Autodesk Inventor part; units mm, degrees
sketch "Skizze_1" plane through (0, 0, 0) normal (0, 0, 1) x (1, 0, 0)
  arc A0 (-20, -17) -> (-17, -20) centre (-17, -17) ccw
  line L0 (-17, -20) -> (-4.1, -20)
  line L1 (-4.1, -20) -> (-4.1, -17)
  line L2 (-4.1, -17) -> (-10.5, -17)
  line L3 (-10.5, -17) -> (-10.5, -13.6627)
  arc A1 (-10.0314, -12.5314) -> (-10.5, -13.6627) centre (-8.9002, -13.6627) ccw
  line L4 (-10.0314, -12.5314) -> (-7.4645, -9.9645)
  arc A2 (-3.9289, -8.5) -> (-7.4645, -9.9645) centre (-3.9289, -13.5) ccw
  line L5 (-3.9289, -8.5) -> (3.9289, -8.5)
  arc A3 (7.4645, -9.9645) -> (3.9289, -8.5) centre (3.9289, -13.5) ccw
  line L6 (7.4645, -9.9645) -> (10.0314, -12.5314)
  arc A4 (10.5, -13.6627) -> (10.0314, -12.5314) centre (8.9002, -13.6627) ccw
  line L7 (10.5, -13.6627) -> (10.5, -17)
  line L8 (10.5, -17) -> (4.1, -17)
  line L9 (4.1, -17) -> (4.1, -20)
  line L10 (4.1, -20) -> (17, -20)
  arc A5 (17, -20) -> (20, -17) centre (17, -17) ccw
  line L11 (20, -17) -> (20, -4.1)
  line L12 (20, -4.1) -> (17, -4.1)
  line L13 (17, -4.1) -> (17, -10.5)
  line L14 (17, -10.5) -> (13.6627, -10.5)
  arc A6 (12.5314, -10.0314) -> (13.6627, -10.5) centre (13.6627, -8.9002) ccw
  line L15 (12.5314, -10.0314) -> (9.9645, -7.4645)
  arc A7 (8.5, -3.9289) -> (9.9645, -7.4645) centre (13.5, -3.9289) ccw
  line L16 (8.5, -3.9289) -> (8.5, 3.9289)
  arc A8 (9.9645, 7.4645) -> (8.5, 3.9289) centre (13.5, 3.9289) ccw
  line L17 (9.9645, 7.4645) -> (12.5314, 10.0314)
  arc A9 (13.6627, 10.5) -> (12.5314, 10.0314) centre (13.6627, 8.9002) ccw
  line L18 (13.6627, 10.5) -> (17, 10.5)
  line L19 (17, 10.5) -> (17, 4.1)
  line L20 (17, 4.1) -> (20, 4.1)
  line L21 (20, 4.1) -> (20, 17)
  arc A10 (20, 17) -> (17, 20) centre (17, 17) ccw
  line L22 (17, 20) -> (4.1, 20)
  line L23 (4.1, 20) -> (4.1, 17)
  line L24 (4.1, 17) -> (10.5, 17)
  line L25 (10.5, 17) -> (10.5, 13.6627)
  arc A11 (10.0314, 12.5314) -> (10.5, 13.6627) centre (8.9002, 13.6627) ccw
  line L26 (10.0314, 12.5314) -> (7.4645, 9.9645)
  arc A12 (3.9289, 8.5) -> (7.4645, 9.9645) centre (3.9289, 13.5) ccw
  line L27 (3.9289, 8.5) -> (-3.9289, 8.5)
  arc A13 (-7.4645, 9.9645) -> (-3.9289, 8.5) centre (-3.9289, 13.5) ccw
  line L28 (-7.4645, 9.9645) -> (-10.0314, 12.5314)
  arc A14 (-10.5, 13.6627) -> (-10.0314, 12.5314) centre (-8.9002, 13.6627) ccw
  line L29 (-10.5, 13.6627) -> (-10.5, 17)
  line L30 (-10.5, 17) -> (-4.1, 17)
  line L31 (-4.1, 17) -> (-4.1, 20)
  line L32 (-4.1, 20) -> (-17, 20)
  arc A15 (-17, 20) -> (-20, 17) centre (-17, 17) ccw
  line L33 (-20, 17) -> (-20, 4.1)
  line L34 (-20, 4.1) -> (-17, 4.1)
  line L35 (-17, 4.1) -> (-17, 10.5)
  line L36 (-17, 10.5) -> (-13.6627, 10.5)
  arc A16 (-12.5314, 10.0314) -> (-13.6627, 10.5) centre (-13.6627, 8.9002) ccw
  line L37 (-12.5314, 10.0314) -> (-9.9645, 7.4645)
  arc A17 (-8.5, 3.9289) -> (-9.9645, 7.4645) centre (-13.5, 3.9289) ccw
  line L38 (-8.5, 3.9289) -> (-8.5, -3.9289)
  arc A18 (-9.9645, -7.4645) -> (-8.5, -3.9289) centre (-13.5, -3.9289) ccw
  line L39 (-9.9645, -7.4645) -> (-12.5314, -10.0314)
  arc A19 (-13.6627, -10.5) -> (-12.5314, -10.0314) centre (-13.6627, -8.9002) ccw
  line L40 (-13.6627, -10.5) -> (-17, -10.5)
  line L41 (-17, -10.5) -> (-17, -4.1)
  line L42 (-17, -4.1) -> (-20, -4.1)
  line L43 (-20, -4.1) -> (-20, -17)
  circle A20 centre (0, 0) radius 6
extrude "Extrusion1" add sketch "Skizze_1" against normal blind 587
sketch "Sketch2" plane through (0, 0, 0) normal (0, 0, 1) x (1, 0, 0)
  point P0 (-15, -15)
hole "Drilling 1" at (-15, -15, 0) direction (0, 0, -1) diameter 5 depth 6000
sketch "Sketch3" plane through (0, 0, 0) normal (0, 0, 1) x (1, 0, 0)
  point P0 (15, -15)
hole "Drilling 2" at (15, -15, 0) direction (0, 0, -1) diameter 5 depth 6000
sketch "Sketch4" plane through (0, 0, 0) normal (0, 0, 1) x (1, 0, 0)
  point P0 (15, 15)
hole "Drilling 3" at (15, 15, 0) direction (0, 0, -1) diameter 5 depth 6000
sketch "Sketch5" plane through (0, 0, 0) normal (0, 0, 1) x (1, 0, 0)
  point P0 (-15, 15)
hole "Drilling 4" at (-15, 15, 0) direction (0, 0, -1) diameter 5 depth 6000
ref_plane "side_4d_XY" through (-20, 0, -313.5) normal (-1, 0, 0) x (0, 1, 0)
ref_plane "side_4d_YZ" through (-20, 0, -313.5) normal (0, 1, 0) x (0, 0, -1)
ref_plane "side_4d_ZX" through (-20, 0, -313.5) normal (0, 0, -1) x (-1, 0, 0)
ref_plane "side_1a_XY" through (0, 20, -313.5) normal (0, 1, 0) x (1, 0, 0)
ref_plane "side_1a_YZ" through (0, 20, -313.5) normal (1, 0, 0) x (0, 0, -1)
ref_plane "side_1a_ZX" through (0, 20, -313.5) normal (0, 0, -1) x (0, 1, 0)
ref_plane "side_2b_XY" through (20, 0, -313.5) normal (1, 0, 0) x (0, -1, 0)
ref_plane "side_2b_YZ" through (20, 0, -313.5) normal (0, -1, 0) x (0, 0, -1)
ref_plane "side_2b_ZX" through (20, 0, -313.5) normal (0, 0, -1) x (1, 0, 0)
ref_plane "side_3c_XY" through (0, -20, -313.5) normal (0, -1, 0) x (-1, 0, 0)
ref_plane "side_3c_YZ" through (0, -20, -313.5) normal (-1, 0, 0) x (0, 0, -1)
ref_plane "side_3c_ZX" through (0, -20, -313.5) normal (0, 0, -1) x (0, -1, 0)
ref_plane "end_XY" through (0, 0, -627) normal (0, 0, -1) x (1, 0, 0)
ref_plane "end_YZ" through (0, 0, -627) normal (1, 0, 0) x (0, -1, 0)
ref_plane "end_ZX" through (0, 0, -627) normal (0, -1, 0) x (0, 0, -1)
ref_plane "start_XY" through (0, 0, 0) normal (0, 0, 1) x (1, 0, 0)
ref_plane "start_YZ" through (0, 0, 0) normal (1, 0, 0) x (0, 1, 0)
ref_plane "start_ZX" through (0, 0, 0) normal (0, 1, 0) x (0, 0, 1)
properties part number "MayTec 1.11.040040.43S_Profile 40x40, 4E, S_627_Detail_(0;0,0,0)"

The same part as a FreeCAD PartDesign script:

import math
import FreeCAD as App
import Part
import Sketcher

doc = App.newDocument("Part")
params = doc.addObject("Spreadsheet::Sheet", "Params")
for row, (alias, value) in enumerate([
    ("sketch1_diameter", "12 mm"),
    ("sketch1_radius", "3 mm"),
    ("sketch1_radius2", "5 mm"),
    ("sketch1_width", "12.9 mm"),
    ("sketch1_width2", "6.4 mm"),
    ("pad1_length", "587 mm"),
    ("sketch2_diameter", "5 mm"),
    ("hole_diameter", "5 mm"),
    ("hole_depth", "6000 mm"),
    ("sketch3_diameter", "5 mm"),
    ("hole2_diameter", "5 mm"),
    ("hole2_depth", "6000 mm"),
    ("sketch4_diameter", "5 mm"),
    ("hole3_diameter", "5 mm"),
    ("hole3_depth", "6000 mm"),
    ("sketch5_diameter", "5 mm"),
    ("hole4_diameter", "5 mm"),
    ("hole4_depth", "6000 mm"),
], start=1):
    params.set(f"A{row}", alias)
    params.set(f"B{row}", "=" + value)
    params.setAlias(f"B{row}", alias)

body = doc.addObject("PartDesign::Body", "Body")

sketch1 = doc.addObject("Sketcher::SketchObject", "Sketch")
body.addObject(sketch1)
sketch1.AttachmentSupport = (doc.XY_Plane, [""])
sketch1.MapMode = "FlatFace"
sketch1.addGeometry(Part.LineSegment(App.Vector(-20, -4.1, 0), App.Vector(-20, -17, 0)), False)
sketch1.addGeometry(Part.ArcOfCircle(Part.Circle(App.Vector(-17, -17, 0), App.Vector(0, 0, 1), 3), math.radians(180), math.radians(270)), False)
sketch1.addGeometry(Part.LineSegment(App.Vector(-17, -20, 0), App.Vector(-4.1, -20, 0)), False)
sketch1.addGeometry(Part.LineSegment(App.Vector(-4.1, -20, 0), App.Vector(-4.1, -17, 0)), False)
sketch1.addGeometry(Part.LineSegment(App.Vector(-4.1, -17, 0), App.Vector(-10.5, -17, 0)), False)
sketch1.addGeometry(Part.LineSegment(App.Vector(-10.5, -17, 0), App.Vector(-10.5, -13.7, 0)), False)
sketch1.addGeometry(Part.ArcOfCircle(Part.Circle(App.Vector(-8.9, -13.7, 0), App.Vector(0, 0, 1), 1.6), math.radians(135), math.radians(180)), False)
sketch1.addGeometry(Part.LineSegment(App.Vector(-10, -12.5, 0), App.Vector(-7.5, -10, 0)), False)
sketch1.addGeometry(Part.ArcOfCircle(Part.Circle(App.Vector(-3.9, -13.5, 0), App.Vector(0, 0, 1), 5), math.radians(90), math.radians(135)), False)
sketch1.addGeometry(Part.LineSegment(App.Vector(-3.9, -8.5, 0), App.Vector(3.9, -8.5, 0)), False)
sketch1.addGeometry(Part.ArcOfCircle(Part.Circle(App.Vector(3.9, -13.5, 0), App.Vector(0, 0, 1), 5), math.radians(45), math.radians(90)), False)
sketch1.addGeometry(Part.LineSegment(App.Vector(7.5, -10, 0), App.Vector(10, -12.5, 0)), False)
sketch1.addGeometry(Part.ArcOfCircle(Part.Circle(App.Vector(8.9, -13.7, 0), App.Vector(0, 0, 1), 1.6), math.radians(0), math.radians(45)), False)
sketch1.addGeometry(Part.LineSegment(App.Vector(10.5, -13.7, 0), App.Vector(10.5, -17, 0)), False)
sketch1.addGeometry(Part.LineSegment(App.Vector(10.5, -17, 0), App.Vector(4.1, -17, 0)), False)
sketch1.addGeometry(Part.LineSegment(App.Vector(4.1, -17, 0), App.Vector(4.1, -20, 0)), False)
sketch1.addGeometry(Part.LineSegment(App.Vector(4.1, -20, 0), App.Vector(17, -20, 0)), False)
sketch1.addGeometry(Part.ArcOfCircle(Part.Circle(App.Vector(17, -17, 0), App.Vector(0, 0, 1), 3), math.radians(-90), math.radians(0)), False)
sketch1.addGeometry(Part.LineSegment(App.Vector(20, -17, 0), App.Vector(20, -4.1, 0)), False)
sketch1.addGeometry(Part.LineSegment(App.Vector(20, -4.1, 0), App.Vector(17, -4.1, 0)), False)
sketch1.addGeometry(Part.LineSegment(App.Vector(17, -4.1, 0), App.Vector(17, -10.5, 0)), False)
sketch1.addGeometry(Part.LineSegment(App.Vector(17, -10.5, 0), App.Vector(13.7, -10.5, 0)), False)
sketch1.addGeometry(Part.ArcOfCircle(Part.Circle(App.Vector(13.7, -8.9, 0), App.Vector(0, 0, 1), 1.6), math.radians(-135), math.radians(-90)), False)
sketch1.addGeometry(Part.LineSegment(App.Vector(12.5, -10, 0), App.Vector(10, -7.5, 0)), False)
sketch1.addGeometry(Part.ArcOfCircle(Part.Circle(App.Vector(13.5, -3.9, 0), App.Vector(0, 0, 1), 5), math.radians(180), math.radians(225)), False)
sketch1.addGeometry(Part.LineSegment(App.Vector(8.5, -3.9, 0), App.Vector(8.5, 3.9, 0)), False)
sketch1.addGeometry(Part.ArcOfCircle(Part.Circle(App.Vector(13.5, 3.9, 0), App.Vector(0, 0, 1), 5), math.radians(135), math.radians(180)), False)
sketch1.addGeometry(Part.LineSegment(App.Vector(10, 7.5, 0), App.Vector(12.5, 10, 0)), False)
sketch1.addGeometry(Part.ArcOfCircle(Part.Circle(App.Vector(13.7, 8.9, 0), App.Vector(0, 0, 1), 1.6), math.radians(90), math.radians(135)), False)
sketch1.addGeometry(Part.LineSegment(App.Vector(13.7, 10.5, 0), App.Vector(17, 10.5, 0)), False)
sketch1.addGeometry(Part.LineSegment(App.Vector(17, 10.5, 0), App.Vector(17, 4.1, 0)), False)
sketch1.addGeometry(Part.LineSegment(App.Vector(17, 4.1, 0), App.Vector(20, 4.1, 0)), False)
sketch1.addGeometry(Part.LineSegment(App.Vector(20, 4.1, 0), App.Vector(20, 17, 0)), False)
sketch1.addGeometry(Part.ArcOfCircle(Part.Circle(App.Vector(17, 17, 0), App.Vector(0, 0, 1), 3), math.radians(0), math.radians(90)), False)
sketch1.addGeometry(Part.LineSegment(App.Vector(17, 20, 0), App.Vector(4.1, 20, 0)), False)
sketch1.addGeometry(Part.LineSegment(App.Vector(4.1, 20, 0), App.Vector(4.1, 17, 0)), False)
sketch1.addGeometry(Part.LineSegment(App.Vector(4.1, 17, 0), App.Vector(10.5, 17, 0)), False)
sketch1.addGeometry(Part.LineSegment(App.Vector(10.5, 17, 0), App.Vector(10.5, 13.7, 0)), False)
sketch1.addGeometry(Part.ArcOfCircle(Part.Circle(App.Vector(8.9, 13.7, 0), App.Vector(0, 0, 1), 1.6), math.radians(-45), math.radians(0)), False)
sketch1.addGeometry(Part.LineSegment(App.Vector(10, 12.5, 0), App.Vector(7.5, 10, 0)), False)
sketch1.addGeometry(Part.ArcOfCircle(Part.Circle(App.Vector(3.9, 13.5, 0), App.Vector(0, 0, 1), 5), math.radians(-90), math.radians(-45)), False)
sketch1.addGeometry(Part.LineSegment(App.Vector(3.9, 8.5, 0), App.Vector(-3.9, 8.5, 0)), False)
sketch1.addGeometry(Part.ArcOfCircle(Part.Circle(App.Vector(-3.9, 13.5, 0), App.Vector(0, 0, 1), 5), math.radians(-135), math.radians(-90)), False)
sketch1.addGeometry(Part.LineSegment(App.Vector(-7.5, 10, 0), App.Vector(-10, 12.5, 0)), False)
sketch1.addGeometry(Part.ArcOfCircle(Part.Circle(App.Vector(-8.9, 13.7, 0), App.Vector(0, 0, 1), 1.6), math.radians(180), math.radians(225)), False)
sketch1.addGeometry(Part.LineSegment(App.Vector(-10.5, 13.7, 0), App.Vector(-10.5, 17, 0)), False)
sketch1.addGeometry(Part.LineSegment(App.Vector(-10.5, 17, 0), App.Vector(-4.1, 17, 0)), False)
sketch1.addGeometry(Part.LineSegment(App.Vector(-4.1, 17, 0), App.Vector(-4.1, 20, 0)), False)
sketch1.addGeometry(Part.LineSegment(App.Vector(-4.1, 20, 0), App.Vector(-17, 20, 0)), False)
sketch1.addGeometry(Part.ArcOfCircle(Part.Circle(App.Vector(-17, 17, 0), App.Vector(0, 0, 1), 3), math.radians(90), math.radians(180)), False)
sketch1.addGeometry(Part.LineSegment(App.Vector(-20, 17, 0), App.Vector(-20, 4.1, 0)), False)
sketch1.addGeometry(Part.LineSegment(App.Vector(-20, 4.1, 0), App.Vector(-17, 4.1, 0)), False)
sketch1.addGeometry(Part.LineSegment(App.Vector(-17, 4.1, 0), App.Vector(-17, 10.5, 0)), False)
sketch1.addGeometry(Part.LineSegment(App.Vector(-17, 10.5, 0), App.Vector(-13.7, 10.5, 0)), False)
sketch1.addGeometry(Part.ArcOfCircle(Part.Circle(App.Vector(-13.7, 8.9, 0), App.Vector(0, 0, 1), 1.6), math.radians(45), math.radians(90)), False)
sketch1.addGeometry(Part.LineSegment(App.Vector(-12.5, 10, 0), App.Vector(-10, 7.5, 0)), False)
sketch1.addGeometry(Part.ArcOfCircle(Part.Circle(App.Vector(-13.5, 3.9, 0), App.Vector(0, 0, 1), 5), math.radians(0), math.radians(45)), False)
sketch1.addGeometry(Part.LineSegment(App.Vector(-8.5, 3.9, 0), App.Vector(-8.5, -3.9, 0)), False)
sketch1.addGeometry(Part.ArcOfCircle(Part.Circle(App.Vector(-13.5, -3.9, 0), App.Vector(0, 0, 1), 5), math.radians(-45), math.radians(0)), False)
sketch1.addGeometry(Part.LineSegment(App.Vector(-10, -7.5, 0), App.Vector(-12.5, -10, 0)), False)
sketch1.addGeometry(Part.ArcOfCircle(Part.Circle(App.Vector(-13.7, -8.9, 0), App.Vector(0, 0, 1), 1.6), math.radians(-90), math.radians(-45)), False)
sketch1.addGeometry(Part.LineSegment(App.Vector(-13.7, -10.5, 0), App.Vector(-17, -10.5, 0)), False)
sketch1.addGeometry(Part.LineSegment(App.Vector(-17, -10.5, 0), App.Vector(-17, -4.1, 0)), False)
sketch1.addGeometry(Part.LineSegment(App.Vector(-17, -4.1, 0), App.Vector(-20, -4.1, 0)), False)
sketch1.addGeometry(Part.Circle(App.Vector(0, 0, 0), App.Vector(0, 0, 1), 6), False)
sketch1.addConstraint(Sketcher.Constraint("Tangent", 0, 2, 1, 1))
sketch1.addConstraint(Sketcher.Constraint("Tangent", 1, 2, 2, 1))
sketch1.addConstraint(Sketcher.Constraint("Coincident", 2, 2, 3, 1))
sketch1.addConstraint(Sketcher.Constraint("Coincident", 3, 2, 4, 1))
sketch1.addConstraint(Sketcher.Constraint("Coincident", 4, 2, 5, 1))
sketch1.addConstraint(Sketcher.Constraint("Tangent", 5, 2, 6, 2))
sketch1.addConstraint(Sketcher.Constraint("Tangent", 6, 1, 7, 1))
sketch1.addConstraint(Sketcher.Constraint("Tangent", 7, 2, 8, 2))
sketch1.addConstraint(Sketcher.Constraint("Tangent", 8, 1, 9, 1))
sketch1.addConstraint(Sketcher.Constraint("Tangent", 9, 2, 10, 2))
sketch1.addConstraint(Sketcher.Constraint("Tangent", 10, 1, 11, 1))
sketch1.addConstraint(Sketcher.Constraint("Tangent", 11, 2, 12, 2))
sketch1.addConstraint(Sketcher.Constraint("Tangent", 12, 1, 13, 1))
sketch1.addConstraint(Sketcher.Constraint("Coincident", 13, 2, 14, 1))
sketch1.addConstraint(Sketcher.Constraint("Coincident", 14, 2, 15, 1))
sketch1.addConstraint(Sketcher.Constraint("Coincident", 15, 2, 16, 1))
sketch1.addConstraint(Sketcher.Constraint("Tangent", 16, 2, 17, 1))
sketch1.addConstraint(Sketcher.Constraint("Tangent", 17, 2, 18, 1))
sketch1.addConstraint(Sketcher.Constraint("Coincident", 18, 2, 19, 1))
sketch1.addConstraint(Sketcher.Constraint("Coincident", 19, 2, 20, 1))
sketch1.addConstraint(Sketcher.Constraint("Coincident", 20, 2, 21, 1))
sketch1.addConstraint(Sketcher.Constraint("Tangent", 21, 2, 22, 2))
sketch1.addConstraint(Sketcher.Constraint("Tangent", 22, 1, 23, 1))
sketch1.addConstraint(Sketcher.Constraint("Tangent", 23, 2, 24, 2))
sketch1.addConstraint(Sketcher.Constraint("Tangent", 24, 1, 25, 1))
sketch1.addConstraint(Sketcher.Constraint("Tangent", 25, 2, 26, 2))
sketch1.addConstraint(Sketcher.Constraint("Tangent", 26, 1, 27, 1))
sketch1.addConstraint(Sketcher.Constraint("Tangent", 27, 2, 28, 2))
sketch1.addConstraint(Sketcher.Constraint("Tangent", 28, 1, 29, 1))
sketch1.addConstraint(Sketcher.Constraint("Coincident", 29, 2, 30, 1))
sketch1.addConstraint(Sketcher.Constraint("Coincident", 30, 2, 31, 1))
sketch1.addConstraint(Sketcher.Constraint("Coincident", 31, 2, 32, 1))
sketch1.addConstraint(Sketcher.Constraint("Tangent", 32, 2, 33, 1))
sketch1.addConstraint(Sketcher.Constraint("Tangent", 33, 2, 34, 1))
sketch1.addConstraint(Sketcher.Constraint("Coincident", 34, 2, 35, 1))
sketch1.addConstraint(Sketcher.Constraint("Coincident", 35, 2, 36, 1))
sketch1.addConstraint(Sketcher.Constraint("Coincident", 36, 2, 37, 1))
sketch1.addConstraint(Sketcher.Constraint("Tangent", 37, 2, 38, 2))
sketch1.addConstraint(Sketcher.Constraint("Tangent", 38, 1, 39, 1))
sketch1.addConstraint(Sketcher.Constraint("Tangent", 39, 2, 40, 2))
sketch1.addConstraint(Sketcher.Constraint("Tangent", 40, 1, 41, 1))
sketch1.addConstraint(Sketcher.Constraint("Tangent", 41, 2, 42, 2))
sketch1.addConstraint(Sketcher.Constraint("Tangent", 42, 1, 43, 1))
sketch1.addConstraint(Sketcher.Constraint("Tangent", 43, 2, 44, 2))
sketch1.addConstraint(Sketcher.Constraint("Tangent", 44, 1, 45, 1))
sketch1.addConstraint(Sketcher.Constraint("Coincident", 45, 2, 46, 1))
sketch1.addConstraint(Sketcher.Constraint("Coincident", 46, 2, 47, 1))
sketch1.addConstraint(Sketcher.Constraint("Coincident", 47, 2, 48, 1))
sketch1.addConstraint(Sketcher.Constraint("Tangent", 48, 2, 49, 1))
sketch1.addConstraint(Sketcher.Constraint("Tangent", 49, 2, 50, 1))
sketch1.addConstraint(Sketcher.Constraint("Coincident", 50, 2, 51, 1))
sketch1.addConstraint(Sketcher.Constraint("Coincident", 51, 2, 52, 1))
sketch1.addConstraint(Sketcher.Constraint("Coincident", 52, 2, 53, 1))
sketch1.addConstraint(Sketcher.Constraint("Tangent", 53, 2, 54, 2))
sketch1.addConstraint(Sketcher.Constraint("Tangent", 54, 1, 55, 1))
sketch1.addConstraint(Sketcher.Constraint("Tangent", 55, 2, 56, 2))
sketch1.addConstraint(Sketcher.Constraint("Tangent", 56, 1, 57, 1))
sketch1.addConstraint(Sketcher.Constraint("Tangent", 57, 2, 58, 2))
sketch1.addConstraint(Sketcher.Constraint("Tangent", 58, 1, 59, 1))
sketch1.addConstraint(Sketcher.Constraint("Tangent", 59, 2, 60, 2))
sketch1.addConstraint(Sketcher.Constraint("Tangent", 60, 1, 61, 1))
sketch1.addConstraint(Sketcher.Constraint("Coincident", 61, 2, 62, 1))
sketch1.addConstraint(Sketcher.Constraint("Coincident", 62, 2, 63, 1))
sketch1.addConstraint(Sketcher.Constraint("Coincident", 63, 2, 0, 1))
sketch1.addConstraint(Sketcher.Constraint("Vertical", 0))
sketch1.addConstraint(Sketcher.Constraint("Horizontal", 2))
sketch1.addConstraint(Sketcher.Constraint("Vertical", 3))
sketch1.addConstraint(Sketcher.Constraint("Horizontal", 4))
sketch1.addConstraint(Sketcher.Constraint("Vertical", 5))
sketch1.addConstraint(Sketcher.Constraint("Horizontal", 9))
sketch1.addConstraint(Sketcher.Constraint("Vertical", 13))
sketch1.addConstraint(Sketcher.Constraint("Horizontal", 14))
sketch1.addConstraint(Sketcher.Constraint("Vertical", 15))
sketch1.addConstraint(Sketcher.Constraint("Horizontal", 16))
sketch1.addConstraint(Sketcher.Constraint("Vertical", 18))
sketch1.addConstraint(Sketcher.Constraint("Horizontal", 19))
sketch1.addConstraint(Sketcher.Constraint("Vertical", 20))
sketch1.addConstraint(Sketcher.Constraint("Horizontal", 21))
sketch1.addConstraint(Sketcher.Constraint("Vertical", 25))
sketch1.addConstraint(Sketcher.Constraint("Horizontal", 29))
sketch1.addConstraint(Sketcher.Constraint("Vertical", 30))
sketch1.addConstraint(Sketcher.Constraint("Horizontal", 31))
sketch1.addConstraint(Sketcher.Constraint("Vertical", 32))
sketch1.addConstraint(Sketcher.Constraint("Horizontal", 34))
sketch1.addConstraint(Sketcher.Constraint("Vertical", 35))
sketch1.addConstraint(Sketcher.Constraint("Horizontal", 36))
sketch1.addConstraint(Sketcher.Constraint("Vertical", 37))
sketch1.addConstraint(Sketcher.Constraint("Horizontal", 41))
sketch1.addConstraint(Sketcher.Constraint("Vertical", 45))
sketch1.addConstraint(Sketcher.Constraint("Horizontal", 46))
sketch1.addConstraint(Sketcher.Constraint("Vertical", 47))
sketch1.addConstraint(Sketcher.Constraint("Horizontal", 48))
sketch1.addConstraint(Sketcher.Constraint("Vertical", 50))
sketch1.addConstraint(Sketcher.Constraint("Horizontal", 51))
sketch1.addConstraint(Sketcher.Constraint("Vertical", 52))
sketch1.addConstraint(Sketcher.Constraint("Horizontal", 53))
sketch1.addConstraint(Sketcher.Constraint("Vertical", 57))
sketch1.addConstraint(Sketcher.Constraint("Horizontal", 61))
sketch1.addConstraint(Sketcher.Constraint("Vertical", 62))
sketch1.addConstraint(Sketcher.Constraint("Horizontal", 63))
sketch1.addConstraint(Sketcher.Constraint("Coincident", 64, 3, -1, 1))
sketch1.addConstraint(Sketcher.Constraint("Equal", 8, 10))
sketch1.addConstraint(Sketcher.Constraint("Equal", 6, 12))
sketch1.addConstraint(Sketcher.Constraint("Equal", 1, 17))
sketch1.addConstraint(Sketcher.Constraint("Equal", 12, 22))
sketch1.addConstraint(Sketcher.Constraint("Equal", 10, 24))
sketch1.addConstraint(Sketcher.Constraint("Equal", 24, 26))
sketch1.addConstraint(Sketcher.Constraint("Equal", 22, 28))
sketch1.addConstraint(Sketcher.Constraint("Equal", 17, 33))
sketch1.addConstraint(Sketcher.Constraint("Equal", 28, 38))
sketch1.addConstraint(Sketcher.Constraint("Equal", 26, 40))
sketch1.addConstraint(Sketcher.Constraint("Equal", 40, 42))
sketch1.addConstraint(Sketcher.Constraint("Equal", 38, 44))
sketch1.addConstraint(Sketcher.Constraint("Equal", 33, 49))
sketch1.addConstraint(Sketcher.Constraint("Equal", 44, 54))
sketch1.addConstraint(Sketcher.Constraint("Equal", 42, 56))
sketch1.addConstraint(Sketcher.Constraint("Equal", 56, 58))
sketch1.addConstraint(Sketcher.Constraint("Equal", 54, 60))
sketch1.addConstraint(Sketcher.Constraint("Symmetric", 1, 3, 33, 3, -1, 1))
sketch1.addConstraint(Sketcher.Constraint("Symmetric", 6, 3, 38, 3, -1, 1))
sketch1.addConstraint(Sketcher.Constraint("Symmetric", 8, 3, 40, 3, -1, 1))
sketch1.addConstraint(Sketcher.Constraint("Symmetric", 12, 3, 44, 3, -1, 1))
sketch1.addConstraint(Sketcher.Constraint("Symmetric", 17, 3, 49, 3, -1, 1))
sketch1.addConstraint(Sketcher.Constraint("Symmetric", 22, 3, 54, 3, -1, 1))
sketch1.addConstraint(Sketcher.Constraint("Symmetric", 24, 3, 56, 3, -1, 1))
sketch1.addConstraint(Sketcher.Constraint("Symmetric", 28, 3, 60, 3, -1, 1))
sketch1.addConstraint(Sketcher.Constraint("Symmetric", 3, 2, 35, 2, -1, 1))
sketch1.addConstraint(Sketcher.Constraint("Symmetric", 14, 2, 46, 2, -1, 1))
sketch1.addConstraint(Sketcher.Constraint("Symmetric", 19, 2, 51, 2, -1, 1))
sketch1.addConstraint(Sketcher.Constraint("Symmetric", 30, 2, 62, 2, -1, 1))
sketch1.addConstraint(Sketcher.Constraint("Symmetric", 6, 3, 12, 3, -2))
sketch1.addConstraint(Sketcher.Constraint("Symmetric", 1, 3, 17, 3, -2))
sketch1.addConstraint(Sketcher.Constraint("Symmetric", 28, 3, 54, 3, -2))
sketch1.addConstraint(Sketcher.Constraint("Symmetric", 3, 2, 14, 2, -2))
sketch1.addConstraint(Sketcher.Constraint("Symmetric", 30, 2, 51, 2, -2))
sketch1.addConstraint(Sketcher.Constraint("Perpendicular", 7, 11))
sketch1.addConstraint(Sketcher.Constraint("Parallel", 11, 23))
sketch1.addConstraint(Sketcher.Constraint("Perpendicular", 23, 27))
sketch1.addConstraint(Sketcher.Constraint("Perpendicular", 39, 43))
sketch1.addConstraint(Sketcher.Constraint("Perpendicular", 55, 59))
sketch1.addConstraint(Sketcher.Constraint("Horizontal", 26, 3, 56, 3))
sketch1.addConstraint(Sketcher.Constraint("Horizontal", 0, 2, 3, 2))
sketch1.addConstraint(Sketcher.Constraint("Vertical", 16, 2, 19, 2))
sketch1.addConstraint(Sketcher.Constraint("Equal", 48, 0))
sketch1.addConstraint(Sketcher.Constraint("Equal", 61, 5))
sketch1.addConstraint(Sketcher.Constraint("Equal", 46, 20))
sketch1.addConstraint(Sketcher.Constraint("Equal", 41, 25))
sketch1.addConstraint(Sketcher.Constraint("Equal", 11, 23))
sketch1.addConstraint(Sketcher.Constraint("Diameter", 64, 12.0))
sketch1.addConstraint(Sketcher.Constraint("Radius", 1, 3.0))
sketch1.addConstraint(Sketcher.Constraint("Radius", 8, 5.0))
sketch1.addConstraint(Sketcher.Constraint("DistanceX", 2, 1, 2, 2, 12.9))
sketch1.addConstraint(Sketcher.Constraint("DistanceX", 4, 2, 4, 1, 6.4))
sketch1.addConstraint(Sketcher.Constraint("DistanceX", 1, 3, -1, 1, 17.0))
sketch1.addConstraint(Sketcher.Constraint("DistanceY", 8, 3, -1, 1, 13.5))
sketch1.addConstraint(Sketcher.Constraint("Radius", 6, 1.5998))
sketch1.addConstraint(Sketcher.Constraint("DistanceX", 9, 1, 9, 2, 7.8578))
sketch1.setExpression("Constraints[148]", "Params.sketch1_diameter")
sketch1.setExpression("Constraints[149]", "Params.sketch1_radius")
sketch1.setExpression("Constraints[150]", "Params.sketch1_radius2")
sketch1.setExpression("Constraints[151]", "Params.sketch1_width")
sketch1.setExpression("Constraints[152]", "Params.sketch1_width2")
pad1 = doc.addObject("PartDesign::Pad", "Pad")
body.addObject(pad1)
pad1.Profile = sketch1
pad1.setExpression("Length", "Params.pad1_length")
pad1.Reversed = True

sketch2 = doc.addObject("Sketcher::SketchObject", "Sketch001")
body.addObject(sketch2)
sketch2.AttachmentSupport = (doc.XY_Plane, [""])
sketch2.MapMode = "FlatFace"
sketch2.addGeometry(Part.Circle(App.Vector(-15, -15, 0), App.Vector(0, 0, 1), 2.5), False)
sketch2.addConstraint(Sketcher.Constraint("Diameter", 0, 5.0))
sketch2.addConstraint(Sketcher.Constraint("DistanceX", 0, 3, -1, 1, 15.0))
sketch2.addConstraint(Sketcher.Constraint("DistanceY", 0, 3, -1, 1, 15.0))
sketch2.setExpression("Constraints[0]", "Params.sketch2_diameter")
doc.recompute()
hole = doc.addObject("PartDesign::Hole", "Hole")
body.addObject(hole)
hole.Profile = sketch2
hole.ThreadType = "None"
hole.setExpression("Diameter", "Params.hole_diameter")
hole.DepthType = "Dimension"
hole.setExpression("Depth", "Params.hole_depth")
hole.DrillPoint = "Flat"

sketch3 = doc.addObject("Sketcher::SketchObject", "Sketch002")
body.addObject(sketch3)
sketch3.AttachmentSupport = (doc.XY_Plane, [""])
sketch3.MapMode = "FlatFace"
sketch3.addGeometry(Part.Circle(App.Vector(15, -15, 0), App.Vector(0, 0, 1), 2.5), False)
sketch3.addConstraint(Sketcher.Constraint("Diameter", 0, 5.0))
sketch3.addConstraint(Sketcher.Constraint("DistanceX", -1, 1, 0, 3, 15.0))
sketch3.addConstraint(Sketcher.Constraint("DistanceY", 0, 3, -1, 1, 15.0))
sketch3.setExpression("Constraints[0]", "Params.sketch3_diameter")
doc.recompute()
hole2 = doc.addObject("PartDesign::Hole", "Hole001")
body.addObject(hole2)
hole2.Profile = sketch3
hole2.ThreadType = "None"
hole2.setExpression("Diameter", "Params.hole2_diameter")
hole2.DepthType = "Dimension"
hole2.setExpression("Depth", "Params.hole2_depth")
hole2.DrillPoint = "Flat"

sketch4 = doc.addObject("Sketcher::SketchObject", "Sketch003")
body.addObject(sketch4)
sketch4.AttachmentSupport = (doc.XY_Plane, [""])
sketch4.MapMode = "FlatFace"
sketch4.addGeometry(Part.Circle(App.Vector(15, 15, 0), App.Vector(0, 0, 1), 2.5), False)
sketch4.addConstraint(Sketcher.Constraint("Diameter", 0, 5.0))
sketch4.addConstraint(Sketcher.Constraint("DistanceX", -1, 1, 0, 3, 15.0))
sketch4.addConstraint(Sketcher.Constraint("DistanceY", -1, 1, 0, 3, 15.0))
sketch4.setExpression("Constraints[0]", "Params.sketch4_diameter")
doc.recompute()
hole3 = doc.addObject("PartDesign::Hole", "Hole002")
body.addObject(hole3)
hole3.Profile = sketch4
hole3.ThreadType = "None"
hole3.setExpression("Diameter", "Params.hole3_diameter")
hole3.DepthType = "Dimension"
hole3.setExpression("Depth", "Params.hole3_depth")
hole3.DrillPoint = "Flat"

sketch5 = doc.addObject("Sketcher::SketchObject", "Sketch004")
body.addObject(sketch5)
sketch5.AttachmentSupport = (doc.XY_Plane, [""])
sketch5.MapMode = "FlatFace"
sketch5.addGeometry(Part.Circle(App.Vector(-15, 15, 0), App.Vector(0, 0, 1), 2.5), False)
sketch5.addConstraint(Sketcher.Constraint("Diameter", 0, 5.0))
sketch5.addConstraint(Sketcher.Constraint("DistanceX", 0, 3, -1, 1, 15.0))
sketch5.addConstraint(Sketcher.Constraint("DistanceY", -1, 1, 0, 3, 15.0))
sketch5.setExpression("Constraints[0]", "Params.sketch5_diameter")
doc.recompute()
hole4 = doc.addObject("PartDesign::Hole", "Hole003")
body.addObject(hole4)
hole4.Profile = sketch5
hole4.ThreadType = "None"
hole4.setExpression("Diameter", "Params.hole4_diameter")
hole4.DepthType = "Dimension"
hole4.setExpression("Depth", "Params.hole4_depth")
hole4.DrillPoint = "Flat"

doc.recompute()
